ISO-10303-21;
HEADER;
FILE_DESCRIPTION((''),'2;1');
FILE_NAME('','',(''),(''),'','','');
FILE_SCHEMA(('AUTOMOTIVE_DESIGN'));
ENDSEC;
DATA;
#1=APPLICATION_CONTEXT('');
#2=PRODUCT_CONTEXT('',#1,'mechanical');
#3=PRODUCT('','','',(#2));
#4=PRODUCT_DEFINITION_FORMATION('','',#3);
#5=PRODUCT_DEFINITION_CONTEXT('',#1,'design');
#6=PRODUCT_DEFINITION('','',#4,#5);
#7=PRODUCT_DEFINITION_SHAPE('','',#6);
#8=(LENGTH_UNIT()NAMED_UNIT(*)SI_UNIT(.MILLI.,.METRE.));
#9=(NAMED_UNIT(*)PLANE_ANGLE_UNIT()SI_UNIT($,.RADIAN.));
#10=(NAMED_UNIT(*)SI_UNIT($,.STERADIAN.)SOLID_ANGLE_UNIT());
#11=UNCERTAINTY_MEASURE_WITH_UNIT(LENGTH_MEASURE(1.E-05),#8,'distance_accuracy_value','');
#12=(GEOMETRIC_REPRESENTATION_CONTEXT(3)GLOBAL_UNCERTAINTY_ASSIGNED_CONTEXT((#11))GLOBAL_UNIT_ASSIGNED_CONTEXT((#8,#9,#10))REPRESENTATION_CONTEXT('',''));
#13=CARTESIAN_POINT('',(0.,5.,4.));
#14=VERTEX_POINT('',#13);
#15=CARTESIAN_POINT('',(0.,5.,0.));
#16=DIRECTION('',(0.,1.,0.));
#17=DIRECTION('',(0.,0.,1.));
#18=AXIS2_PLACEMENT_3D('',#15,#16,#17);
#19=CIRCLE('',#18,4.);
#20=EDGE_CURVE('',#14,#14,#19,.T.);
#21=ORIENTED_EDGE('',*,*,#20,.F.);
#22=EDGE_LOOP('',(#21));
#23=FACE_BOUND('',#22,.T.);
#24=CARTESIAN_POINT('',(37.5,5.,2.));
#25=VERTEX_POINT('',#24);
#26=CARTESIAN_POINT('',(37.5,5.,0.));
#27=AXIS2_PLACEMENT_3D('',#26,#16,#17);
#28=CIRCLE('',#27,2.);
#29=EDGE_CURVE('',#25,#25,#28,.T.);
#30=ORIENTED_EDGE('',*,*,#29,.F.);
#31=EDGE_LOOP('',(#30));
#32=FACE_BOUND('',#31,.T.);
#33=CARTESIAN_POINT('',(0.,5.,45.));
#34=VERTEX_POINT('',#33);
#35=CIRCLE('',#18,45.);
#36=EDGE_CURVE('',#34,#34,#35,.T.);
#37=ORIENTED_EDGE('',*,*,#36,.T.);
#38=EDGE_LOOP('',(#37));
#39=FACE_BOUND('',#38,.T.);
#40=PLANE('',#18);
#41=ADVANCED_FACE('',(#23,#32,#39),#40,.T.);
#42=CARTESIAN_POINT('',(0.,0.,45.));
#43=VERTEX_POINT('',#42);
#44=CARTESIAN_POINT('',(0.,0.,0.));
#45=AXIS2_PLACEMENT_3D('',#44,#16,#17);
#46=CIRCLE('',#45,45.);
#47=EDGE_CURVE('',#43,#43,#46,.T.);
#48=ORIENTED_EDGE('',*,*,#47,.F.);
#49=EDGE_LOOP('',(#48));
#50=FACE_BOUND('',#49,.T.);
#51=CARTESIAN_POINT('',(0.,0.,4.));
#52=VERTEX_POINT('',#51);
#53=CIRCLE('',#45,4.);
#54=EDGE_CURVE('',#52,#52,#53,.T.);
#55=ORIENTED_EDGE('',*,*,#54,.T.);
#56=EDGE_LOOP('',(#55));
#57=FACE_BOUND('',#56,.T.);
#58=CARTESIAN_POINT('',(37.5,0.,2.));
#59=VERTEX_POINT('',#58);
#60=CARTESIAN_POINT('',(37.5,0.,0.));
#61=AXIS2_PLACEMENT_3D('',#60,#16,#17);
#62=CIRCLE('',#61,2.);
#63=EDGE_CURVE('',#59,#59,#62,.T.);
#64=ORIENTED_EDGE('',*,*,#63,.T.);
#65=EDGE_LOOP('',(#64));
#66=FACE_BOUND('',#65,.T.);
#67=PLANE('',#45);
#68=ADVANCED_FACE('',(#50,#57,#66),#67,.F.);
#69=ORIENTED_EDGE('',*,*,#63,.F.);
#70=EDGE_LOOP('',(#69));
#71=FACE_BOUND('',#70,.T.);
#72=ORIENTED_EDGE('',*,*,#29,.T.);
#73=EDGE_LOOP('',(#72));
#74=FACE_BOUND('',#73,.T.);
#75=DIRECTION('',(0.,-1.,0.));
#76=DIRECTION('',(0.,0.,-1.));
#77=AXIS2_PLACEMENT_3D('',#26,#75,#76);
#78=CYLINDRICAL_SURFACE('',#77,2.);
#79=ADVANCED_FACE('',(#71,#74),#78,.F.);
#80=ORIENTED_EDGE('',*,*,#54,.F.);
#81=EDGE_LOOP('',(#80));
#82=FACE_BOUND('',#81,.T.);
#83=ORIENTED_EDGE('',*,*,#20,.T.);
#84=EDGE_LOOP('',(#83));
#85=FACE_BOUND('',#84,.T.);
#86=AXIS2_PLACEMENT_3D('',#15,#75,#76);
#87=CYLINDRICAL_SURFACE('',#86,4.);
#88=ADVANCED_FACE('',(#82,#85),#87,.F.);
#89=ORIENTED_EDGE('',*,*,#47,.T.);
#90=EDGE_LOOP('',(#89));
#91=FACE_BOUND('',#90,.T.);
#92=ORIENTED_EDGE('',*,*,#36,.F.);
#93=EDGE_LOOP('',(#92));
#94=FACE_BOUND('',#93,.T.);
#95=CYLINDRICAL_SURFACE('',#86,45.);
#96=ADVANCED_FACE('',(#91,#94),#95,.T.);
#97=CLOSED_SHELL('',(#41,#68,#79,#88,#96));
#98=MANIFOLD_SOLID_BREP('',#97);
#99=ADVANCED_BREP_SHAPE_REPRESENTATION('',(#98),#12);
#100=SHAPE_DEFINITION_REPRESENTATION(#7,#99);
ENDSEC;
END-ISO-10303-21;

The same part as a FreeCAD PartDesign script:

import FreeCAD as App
import Part
import Sketcher
Q = App.Units.Quantity

doc = App.newDocument("Part")
body = doc.addObject("PartDesign::Body", "Body")

sketch1 = doc.addObject("Sketcher::SketchObject", "Sketch")
body.addObject(sketch1)
sketch1.AttachmentSupport = (doc.XZ_Plane, [""])
sketch1.MapMode = "FlatFace"
sketch1.addGeometry(Part.Circle(App.Vector(0, 0, 0), App.Vector(0, 0, 1), 45), False)
sketch1.addGeometry(Part.Circle(App.Vector(0, 0, 0), App.Vector(0, 0, 1), 4), False)
sketch1.addGeometry(Part.Circle(App.Vector(37.5, 0, 0), App.Vector(0, 0, 1), 2), False)
sketch1.addConstraint(Sketcher.Constraint("Coincident", 0, 3, -1, 1))
sketch1.addConstraint(Sketcher.Constraint("Coincident", 1, 3, -1, 1))
sketch1.addConstraint(Sketcher.Constraint("PointOnObject", 2, 3, -1))
sketch1.addConstraint(Sketcher.Constraint("Diameter", 0, Q("90 mm")))
sketch1.addConstraint(Sketcher.Constraint("Diameter", 1, Q("8 mm")))
sketch1.addConstraint(Sketcher.Constraint("Diameter", 2, Q("4 mm")))
sketch1.addConstraint(Sketcher.Constraint("DistanceX", -1, 1, 2, 3, Q("37.5 mm")))
pad1 = doc.addObject("PartDesign::Pad", "Pad")
body.addObject(pad1)
pad1.Profile = sketch1
pad1.Length = 5
pad1.Reversed = True

doc.recompute()
